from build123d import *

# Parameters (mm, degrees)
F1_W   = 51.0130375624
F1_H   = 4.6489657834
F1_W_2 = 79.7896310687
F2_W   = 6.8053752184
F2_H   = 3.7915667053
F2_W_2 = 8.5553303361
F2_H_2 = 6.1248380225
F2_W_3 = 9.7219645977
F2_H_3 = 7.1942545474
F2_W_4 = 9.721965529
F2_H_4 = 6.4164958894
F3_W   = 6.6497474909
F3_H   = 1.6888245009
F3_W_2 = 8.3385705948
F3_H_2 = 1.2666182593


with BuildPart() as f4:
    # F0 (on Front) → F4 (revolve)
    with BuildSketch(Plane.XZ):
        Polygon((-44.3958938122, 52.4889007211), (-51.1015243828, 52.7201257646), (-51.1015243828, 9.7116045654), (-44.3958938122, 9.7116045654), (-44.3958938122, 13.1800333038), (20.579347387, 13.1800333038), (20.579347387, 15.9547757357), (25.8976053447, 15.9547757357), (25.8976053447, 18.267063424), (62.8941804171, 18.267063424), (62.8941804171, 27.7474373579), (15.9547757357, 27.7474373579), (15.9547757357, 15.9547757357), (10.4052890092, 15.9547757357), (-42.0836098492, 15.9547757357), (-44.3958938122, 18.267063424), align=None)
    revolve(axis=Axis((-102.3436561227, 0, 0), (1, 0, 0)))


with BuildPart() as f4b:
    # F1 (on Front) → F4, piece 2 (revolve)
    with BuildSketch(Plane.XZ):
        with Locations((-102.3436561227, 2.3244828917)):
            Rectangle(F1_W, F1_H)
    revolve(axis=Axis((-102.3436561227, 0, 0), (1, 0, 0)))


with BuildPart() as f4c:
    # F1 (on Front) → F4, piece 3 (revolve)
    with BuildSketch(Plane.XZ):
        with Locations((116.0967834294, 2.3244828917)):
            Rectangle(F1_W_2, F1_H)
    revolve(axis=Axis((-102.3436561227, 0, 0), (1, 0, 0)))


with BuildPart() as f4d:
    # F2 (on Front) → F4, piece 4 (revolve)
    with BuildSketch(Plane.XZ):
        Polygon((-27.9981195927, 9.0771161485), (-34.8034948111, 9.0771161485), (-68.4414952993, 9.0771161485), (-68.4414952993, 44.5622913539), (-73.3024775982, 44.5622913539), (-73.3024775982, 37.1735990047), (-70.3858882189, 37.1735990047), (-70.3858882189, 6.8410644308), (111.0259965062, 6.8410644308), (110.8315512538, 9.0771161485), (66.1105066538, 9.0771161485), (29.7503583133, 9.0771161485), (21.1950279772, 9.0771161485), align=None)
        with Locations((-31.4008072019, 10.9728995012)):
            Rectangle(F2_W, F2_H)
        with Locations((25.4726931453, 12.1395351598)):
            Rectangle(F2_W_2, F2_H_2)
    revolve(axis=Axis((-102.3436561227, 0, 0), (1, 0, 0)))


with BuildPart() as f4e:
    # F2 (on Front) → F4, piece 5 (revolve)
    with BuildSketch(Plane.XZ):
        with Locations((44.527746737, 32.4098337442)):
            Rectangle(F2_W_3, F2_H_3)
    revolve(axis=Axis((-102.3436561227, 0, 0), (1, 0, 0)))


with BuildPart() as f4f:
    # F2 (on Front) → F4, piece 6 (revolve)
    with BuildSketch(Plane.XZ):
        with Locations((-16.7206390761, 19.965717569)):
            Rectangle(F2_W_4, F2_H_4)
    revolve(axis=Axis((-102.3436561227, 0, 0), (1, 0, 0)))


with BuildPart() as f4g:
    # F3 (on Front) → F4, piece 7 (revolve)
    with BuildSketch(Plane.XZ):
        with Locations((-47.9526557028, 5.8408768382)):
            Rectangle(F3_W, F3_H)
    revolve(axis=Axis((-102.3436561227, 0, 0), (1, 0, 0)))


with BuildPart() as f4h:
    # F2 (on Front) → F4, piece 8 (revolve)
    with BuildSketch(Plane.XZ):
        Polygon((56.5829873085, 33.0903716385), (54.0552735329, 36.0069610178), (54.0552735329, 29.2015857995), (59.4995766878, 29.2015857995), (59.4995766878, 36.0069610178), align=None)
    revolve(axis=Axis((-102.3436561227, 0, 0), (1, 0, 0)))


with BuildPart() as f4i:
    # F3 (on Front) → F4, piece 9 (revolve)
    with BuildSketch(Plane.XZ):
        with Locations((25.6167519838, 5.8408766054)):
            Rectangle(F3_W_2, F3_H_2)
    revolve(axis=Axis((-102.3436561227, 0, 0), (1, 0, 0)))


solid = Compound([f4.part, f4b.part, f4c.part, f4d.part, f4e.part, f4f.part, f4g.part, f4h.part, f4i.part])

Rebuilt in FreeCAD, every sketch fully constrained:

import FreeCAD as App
import Part
import Sketcher

V = App.Vector
Q = App.Units.Quantity


def add_polygon(sketch, points):
    """Adds a closed chain of lines whose ends are joined by coincident constraints."""
    first, n = sketch.GeometryCount, len(points)
    for a, b in zip(points, points[1:] + points[:1]):
        sketch.addGeometry(Part.LineSegment(App.Vector(*a, 0), App.Vector(*b, 0)), False)
    for i in range(n):
        sketch.addConstraint(Sketcher.Constraint("Coincident", first + i, 2, first + (i + 1) % n, 1))

doc = App.newDocument("Part")
body = doc.addObject("PartDesign::Body", "Body")

sketch1 = body.newObject("Sketcher::SketchObject", "Sketch")
sketch1.AttachmentSupport = (doc.getObject("XZ_Plane"), [""])
sketch1.MapMode = "FlatFace"
add_polygon(sketch1, [(-44.395894, 52.488901), (-51.101524, 52.720126), (-51.101524, 9.711605), (-44.395894, 9.711605), (-44.395894, 13.180033), (20.579347, 13.180033), (20.579347, 15.954776), (25.897605, 15.954776), (25.897605, 18.267063), (62.89418, 18.267063), (62.89418, 27.747437), (15.954776, 27.747437), (15.954776, 15.954776), (-42.08361, 15.954776), (-44.395894, 18.267063)])
sketch1.addConstraint(Sketcher.Constraint("Vertical", 1))
sketch1.addConstraint(Sketcher.Constraint("Horizontal", 2))
sketch1.addConstraint(Sketcher.Constraint("Vertical", 3))
sketch1.addConstraint(Sketcher.Constraint("Horizontal", 4))
sketch1.addConstraint(Sketcher.Constraint("Vertical", 5))
sketch1.addConstraint(Sketcher.Constraint("Horizontal", 6))
sketch1.addConstraint(Sketcher.Constraint("Vertical", 7))
sketch1.addConstraint(Sketcher.Constraint("Horizontal", 8))
sketch1.addConstraint(Sketcher.Constraint("Vertical", 9))
sketch1.addConstraint(Sketcher.Constraint("Horizontal", 10))
sketch1.addConstraint(Sketcher.Constraint("Vertical", 11))
sketch1.addConstraint(Sketcher.Constraint("Horizontal", 12))
sketch1.addConstraint(Sketcher.Constraint("Vertical", 14))
sketch1.addConstraint(Sketcher.Constraint("Horizontal", 6, 2, 11, 2))
sketch1.addConstraint(Sketcher.Constraint("Horizontal", 8, 2, 13, 2))
sketch1.addConstraint(Sketcher.Constraint("Vertical", 3, 2, 13, 2))
sketch1.addConstraint(Sketcher.Constraint("DistanceX", 2, 1, 2, 2, 6.705631))
sketch1.addConstraint(Sketcher.Constraint("DistanceX", 4, 1, 4, 2, 64.975241))
sketch1.addConstraint(Sketcher.Constraint("DistanceY", 1, 2, 1, 1, 43.008521))
sketch1.addConstraint(Sketcher.Constraint("DistanceY", 3, 1, 3, 2, 3.468429))
sketch1.addConstraint(Sketcher.Constraint("DistanceY", 11, 2, 11, 1, 11.792662))
sketch1.addConstraint(Sketcher.Constraint("DistanceY", -1, 1, 14, 2, 52.488901))
sketch1.addConstraint(Sketcher.Constraint("DistanceX", 3, 2, 6, 2, 70.293499))
sketch1.addConstraint(Sketcher.Constraint("DistanceX", 8, 1, 8, 2, 36.996575))
sketch1.addConstraint(Sketcher.Constraint("DistanceX", 10, 2, 10, 1, 46.939405))
sketch1.addConstraint(Sketcher.Constraint("DistanceX", 12, 2, 12, 1, 58.038386))
sketch1.addConstraint(Sketcher.Constraint("DistanceY", 5, 1, 5, 2, 2.774742))
sketch1.addConstraint(Sketcher.Constraint("DistanceY", 7, 1, 7, 2, 2.312288))
sketch1.addConstraint(Sketcher.Constraint("DistanceY", 14, 1, 14, 2, 34.221837))
sketch1.addConstraint(Sketcher.Constraint("DistanceX", -1, 1, 8, 2, 62.89418))
revolution = body.newObject("PartDesign::Revolution", "Revolution")
revolution.Profile = sketch1
revolution.ReferenceAxis = (sketch1, ["H_Axis"])
revolution.Angle = 360
body2 = doc.addObject("PartDesign::Body", "Body001")

sketch2 = body2.newObject("Sketcher::SketchObject", "Sketch001")
sketch2.AttachmentSupport = (doc.getObject("XZ_Plane001"), [""])
sketch2.MapMode = "FlatFace"
add_polygon(sketch2, [(-127.850175, 4.648966), (-127.850175, 0), (-76.837137, 0), (-76.837137, 4.648966)])
sketch2.addConstraint(Sketcher.Constraint("Vertical", 0))
sketch2.addConstraint(Sketcher.Constraint("Horizontal", 1))
sketch2.addConstraint(Sketcher.Constraint("Vertical", 2))
sketch2.addConstraint(Sketcher.Constraint("Horizontal", 3))
sketch2.addConstraint(Sketcher.Constraint("PointOnObject", 0, 2, -1))
sketch2.addConstraint(Sketcher.Constraint("DistanceX", 1, 1, 1, 2, 51.013038))
sketch2.addConstraint(Sketcher.Constraint("DistanceY", 0, 2, 0, 1, 4.648966))
sketch2.addConstraint(Sketcher.Constraint("DistanceX", 0, 2, -1, 1, 127.850175))
revolution2 = body2.newObject("PartDesign::Revolution", "Revolution001")
revolution2.Profile = sketch2
revolution2.ReferenceAxis = (sketch2, ["H_Axis"])
revolution2.Angle = 360
body3 = doc.addObject("PartDesign::Body", "Body002")

sketch3 = body3.newObject("Sketcher::SketchObject", "Sketch002")
sketch3.AttachmentSupport = (doc.getObject("XZ_Plane002"), [""])
sketch3.MapMode = "FlatFace"
add_polygon(sketch3, [(76.201968, 4.648966), (76.201968, 0), (155.991599, 0), (155.991599, 4.648966)])
sketch3.addConstraint(Sketcher.Constraint("Vertical", 0))
sketch3.addConstraint(Sketcher.Constraint("Horizontal", 1))
sketch3.addConstraint(Sketcher.Constraint("Vertical", 2))
sketch3.addConstraint(Sketcher.Constraint("Horizontal", 3))
sketch3.addConstraint(Sketcher.Constraint("PointOnObject", 0, 2, -1))
sketch3.addConstraint(Sketcher.Constraint("DistanceX", 1, 1, 1, 2, 79.789631))
sketch3.addConstraint(Sketcher.Constraint("DistanceX", -1, 1, 1, 2, 155.991599))
sketch3.addConstraint(Sketcher.Constraint("DistanceY", 0, 2, 0, 1, 4.648966))
revolution3 = body3.newObject("PartDesign::Revolution", "Revolution002")
revolution3.Profile = sketch3
revolution3.ReferenceAxis = (sketch3, ["H_Axis"])
revolution3.Angle = 360
body4 = doc.addObject("PartDesign::Body", "Body003")

sketch4 = body4.newObject("Sketcher::SketchObject", "Sketch003")
sketch4.AttachmentSupport = (doc.getObject("XZ_Plane003"), [""])
sketch4.MapMode = "FlatFace"
add_polygon(sketch4, [(-68.441495, 9.077116), (-68.441495, 44.562291), (-73.302478, 44.562291), (-73.302478, 37.173599), (-70.385888, 37.173599), (-70.385888, 6.841064), (111.025997, 6.841064), (110.831551, 9.077116), (29.750358, 9.077116), (29.750358, 15.201954), (21.195028, 15.201954), (21.195028, 9.077116), (-27.99812, 9.077116), (-27.99812, 12.868683), (-34.803495, 12.868683), (-34.803495, 9.077116)])
sketch4.addConstraint(Sketcher.Constraint("Vertical", 0))
sketch4.addConstraint(Sketcher.Constraint("Horizontal", 1))
sketch4.addConstraint(Sketcher.Constraint("Vertical", 2))
sketch4.addConstraint(Sketcher.Constraint("Horizontal", 3))
sketch4.addConstraint(Sketcher.Constraint("Vertical", 4))
sketch4.addConstraint(Sketcher.Constraint("Horizontal", 5))
sketch4.addConstraint(Sketcher.Constraint("Horizontal", 7))
sketch4.addConstraint(Sketcher.Constraint("Vertical", 8))
sketch4.addConstraint(Sketcher.Constraint("Horizontal", 9))
sketch4.addConstraint(Sketcher.Constraint("Vertical", 10))
sketch4.addConstraint(Sketcher.Constraint("Horizontal", 11))
sketch4.addConstraint(Sketcher.Constraint("Vertical", 12))
sketch4.addConstraint(Sketcher.Constraint("Horizontal", 13))
sketch4.addConstraint(Sketcher.Constraint("Vertical", 14))
sketch4.addConstraint(Sketcher.Constraint("Horizontal", 15))
sketch4.addConstraint(Sketcher.Constraint("Horizontal", 7, 2, 10, 2))
sketch4.addConstraint(Sketcher.Constraint("Horizontal", 11, 2, 14, 2))
sketch4.addConstraint(Sketcher.Constraint("DistanceX", 15, 2, 15, 1, 33.638))
sketch4.addConstraint(Sketcher.Constraint("DistanceX", 3, 1, 3, 2, 2.916589))
sketch4.addConstraint(Sketcher.Constraint("DistanceX", 9, 2, 9, 1, 8.55533))
sketch4.addConstraint(Sketcher.Constraint("DistanceY", 8, 1, 8, 2, 6.124838))
sketch4.addConstraint(Sketcher.Constraint("DistanceY", -1, 1, 2, 2, 37.173599))
sketch4.addConstraint(Sketcher.Constraint("Distance", 6, 2.24449))
sketch4.addConstraint(Sketcher.Constraint("DistanceX", 1, 2, 1, 1, 4.860982))
sketch4.addConstraint(Sketcher.Constraint("DistanceX", 5, 1, 5, 2, 181.411885))
sketch4.addConstraint(Sketcher.Constraint("DistanceX", 7, 2, 7, 1, 81.081193))
sketch4.addConstraint(Sketcher.Constraint("DistanceX", 11, 2, 11, 1, 49.193148))
sketch4.addConstraint(Sketcher.Constraint("DistanceX", 13, 2, 13, 1, 6.805375))
sketch4.addConstraint(Sketcher.Constraint("DistanceY", 0, 1, 0, 2, 35.485175))
sketch4.addConstraint(Sketcher.Constraint("DistanceY", 2, 2, 2, 1, 7.388692))
sketch4.addConstraint(Sketcher.Constraint("DistanceY", 12, 1, 12, 2, 3.791567))
sketch4.addConstraint(Sketcher.Constraint("DistanceX", 3, 2, -1, 1, 70.385888))
revolution4 = body4.newObject("PartDesign::Revolution", "Revolution003")
revolution4.Profile = sketch4
revolution4.ReferenceAxis = (sketch4, ["H_Axis"])
revolution4.Angle = 360
body5 = doc.addObject("PartDesign::Body", "Body004")

sketch5 = body5.newObject("Sketcher::SketchObject", "Sketch004")
sketch5.AttachmentSupport = (doc.getObject("XZ_Plane004"), [""])
sketch5.MapMode = "FlatFace"
add_polygon(sketch5, [(39.666764, 36.006961), (39.666764, 28.812706), (49.388729, 28.812706), (49.388729, 36.006961)])
sketch5.addConstraint(Sketcher.Constraint("Vertical", 0))
sketch5.addConstraint(Sketcher.Constraint("Horizontal", 1))
sketch5.addConstraint(Sketcher.Constraint("Vertical", 2))
sketch5.addConstraint(Sketcher.Constraint("Horizontal", 3))
sketch5.addConstraint(Sketcher.Constraint("DistanceX", 1, 1, 1, 2, 9.721965))
sketch5.addConstraint(Sketcher.Constraint("DistanceY", 0, 2, 0, 1, 7.194255))
sketch5.addConstraint(Sketcher.Constraint("DistanceX", -1, 1, 1, 2, 49.388729))
sketch5.addConstraint(Sketcher.Constraint("DistanceY", -1, 1, 2, 2, 36.006961))
revolution5 = body5.newObject("PartDesign::Revolution", "Revolution004")
revolution5.Profile = sketch5
revolution5.ReferenceAxis = (sketch5, ["H_Axis"])
revolution5.Angle = 360
body6 = doc.addObject("PartDesign::Body", "Body005")

sketch6 = body6.newObject("Sketcher::SketchObject", "Sketch005")
sketch6.AttachmentSupport = (doc.getObject("XZ_Plane005"), [""])
sketch6.MapMode = "FlatFace"
add_polygon(sketch6, [(-21.581622, 23.173966), (-21.581622, 16.75747), (-11.859656, 16.75747), (-11.859656, 23.173966)])
sketch6.addConstraint(Sketcher.Constraint("Vertical", 0))
sketch6.addConstraint(Sketcher.Constraint("Horizontal", 1))
sketch6.addConstraint(Sketcher.Constraint("Vertical", 2))
sketch6.addConstraint(Sketcher.Constraint("Horizontal", 3))
sketch6.addConstraint(Sketcher.Constraint("DistanceX", 1, 1, 1, 2, 9.721966))
sketch6.addConstraint(Sketcher.Constraint("DistanceY", 0, 2, 0, 1, 6.416496))
sketch6.addConstraint(Sketcher.Constraint("DistanceX", 0, 2, -1, 1, 21.581622))
sketch6.addConstraint(Sketcher.Constraint("DistanceY", -1, 1, 0, 2, 16.75747))
revolution6 = body6.newObject("PartDesign::Revolution", "Revolution005")
revolution6.Profile = sketch6
revolution6.ReferenceAxis = (sketch6, ["H_Axis"])
revolution6.Angle = 360
body7 = doc.addObject("PartDesign::Body", "Body006")

sketch7 = body7.newObject("Sketcher::SketchObject", "Sketch006")
sketch7.AttachmentSupport = (doc.getObject("XZ_Plane006"), [""])
sketch7.MapMode = "FlatFace"
add_polygon(sketch7, [(-51.277529, 6.685289), (-51.277529, 4.996465), (-44.627782, 4.996465), (-44.627782, 6.685289)])
sketch7.addConstraint(Sketcher.Constraint("Vertical", 0))
sketch7.addConstraint(Sketcher.Constraint("Horizontal", 1))
sketch7.addConstraint(Sketcher.Constraint("Vertical", 2))
sketch7.addConstraint(Sketcher.Constraint("Horizontal", 3))
sketch7.addConstraint(Sketcher.Constraint("DistanceX", 1, 1, 1, 2, 6.649747))
sketch7.addConstraint(Sketcher.Constraint("DistanceY", 0, 2, 0, 1, 1.688825))
sketch7.addConstraint(Sketcher.Constraint("DistanceX", 0, 2, -1, 1, 51.277529))
sketch7.addConstraint(Sketcher.Constraint("DistanceY", -1, 1, 2, 2, 6.685289))
revolution7 = body7.newObject("PartDesign::Revolution", "Revolution006")
revolution7.Profile = sketch7
revolution7.ReferenceAxis = (sketch7, ["H_Axis"])
revolution7.Angle = 360
body8 = doc.addObject("PartDesign::Body", "Body007")

sketch8 = body8.newObject("Sketcher::SketchObject", "Sketch007")
sketch8.AttachmentSupport = (doc.getObject("XZ_Plane007"), [""])
sketch8.MapMode = "FlatFace"
add_polygon(sketch8, [(56.582987, 33.090372), (54.055274, 36.006961), (54.055274, 29.201586), (59.499577, 29.201586), (59.499577, 36.006961)])
sketch8.addConstraint(Sketcher.Constraint("Vertical", 1))
sketch8.addConstraint(Sketcher.Constraint("Horizontal", 2))
sketch8.addConstraint(Sketcher.Constraint("Vertical", 3))
sketch8.addConstraint(Sketcher.Constraint("Horizontal", 0, 2, 3, 2))
sketch8.addConstraint(Sketcher.Constraint("Angle", 4, Q("-135 deg")))
sketch8.addConstraint(Sketcher.Constraint("Distance", 0, 3.859512))
sketch8.addConstraint(Sketcher.Constraint("Distance", 4, 4.12468))
sketch8.addConstraint(Sketcher.Constraint("DistanceY", 1, 2, 1, 1, 6.805375))
sketch8.addConstraint(Sketcher.Constraint("DistanceY", -1, 1, 0, 2, 36.006961))
sketch8.addConstraint(Sketcher.Constraint("DistanceX", -1, 1, 0, 2, 54.055274))
revolution8 = body8.newObject("PartDesign::Revolution", "Revolution007")
revolution8.Profile = sketch8
revolution8.ReferenceAxis = (sketch8, ["H_Axis"])
revolution8.Angle = 360
body9 = doc.addObject("PartDesign::Body", "Body008")

sketch9 = body9.newObject("Sketcher::SketchObject", "Sketch008")
sketch9.AttachmentSupport = (doc.getObject("XZ_Plane008"), [""])
sketch9.MapMode = "FlatFace"
add_polygon(sketch9, [(21.447467, 6.474186), (21.447467, 5.207567), (29.786037, 5.207567), (29.786037, 6.474186)])
sketch9.addConstraint(Sketcher.Constraint("Vertical", 0))
sketch9.addConstraint(Sketcher.Constraint("Horizontal", 1))
sketch9.addConstraint(Sketcher.Constraint("Vertical", 2))
sketch9.addConstraint(Sketcher.Constraint("Horizontal", 3))
sketch9.addConstraint(Sketcher.Constraint("DistanceX", 1, 1, 1, 2, 8.338571))
sketch9.addConstraint(Sketcher.Constraint("DistanceY", 0, 2, 0, 1, 1.266618))
sketch9.addConstraint(Sketcher.Constraint("DistanceX", -1, 1, 0, 2, 21.447467))
sketch9.addConstraint(Sketcher.Constraint("DistanceY", -1, 1, 0, 2, 5.207567))
revolution9 = body9.newObject("PartDesign::Revolution", "Revolution008")
revolution9.Profile = sketch9
revolution9.ReferenceAxis = (sketch9, ["H_Axis"])
revolution9.Angle = 360

doc.recompute()
